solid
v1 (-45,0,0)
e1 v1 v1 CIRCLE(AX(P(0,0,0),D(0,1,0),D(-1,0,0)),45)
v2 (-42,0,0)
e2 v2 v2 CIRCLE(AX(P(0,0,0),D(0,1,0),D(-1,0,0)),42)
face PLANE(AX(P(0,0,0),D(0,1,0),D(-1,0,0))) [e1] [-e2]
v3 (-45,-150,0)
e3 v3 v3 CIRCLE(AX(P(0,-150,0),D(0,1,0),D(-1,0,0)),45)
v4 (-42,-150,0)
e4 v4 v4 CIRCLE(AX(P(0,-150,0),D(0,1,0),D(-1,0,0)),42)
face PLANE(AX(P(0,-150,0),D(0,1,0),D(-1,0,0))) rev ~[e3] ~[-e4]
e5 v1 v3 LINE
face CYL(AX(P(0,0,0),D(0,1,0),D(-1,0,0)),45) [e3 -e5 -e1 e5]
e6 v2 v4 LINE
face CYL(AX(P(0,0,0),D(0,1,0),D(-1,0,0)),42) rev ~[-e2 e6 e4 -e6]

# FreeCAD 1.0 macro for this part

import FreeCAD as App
import Part
import Sketcher
from FreeCAD import Vector

doc = App.newDocument("Part")
body = doc.addObject("PartDesign::Body", "Body")

# Sketch on XZ plane
sketch1 = body.newObject("Sketcher::SketchObject", "Sketch")
sketch1.AttachmentSupport = (doc.getObject("XZ_Plane"), [""])
sketch1.MapMode = "FlatFace"
sketch1.addGeometry(Part.Circle(Vector(0, 0, 0), Vector(0, 0, 1), 45), False)
sketch1.addGeometry(Part.Circle(Vector(0, 0, 0), Vector(0, 0, 1), 42), False)
sketch1.addConstraint(Sketcher.Constraint("Coincident", 0, 3, -1, 1))
sketch1.addConstraint(Sketcher.Constraint("Coincident", 1, 3, -1, 1))
sketch1.addConstraint(Sketcher.Constraint("Diameter", 0, 90.0))
sketch1.addConstraint(Sketcher.Constraint("Diameter", 1, 84.0))
pad1 = body.newObject("PartDesign::Pad", "Pad")
pad1.Profile = sketch1
pad1.Length = 150

doc.recompute()
